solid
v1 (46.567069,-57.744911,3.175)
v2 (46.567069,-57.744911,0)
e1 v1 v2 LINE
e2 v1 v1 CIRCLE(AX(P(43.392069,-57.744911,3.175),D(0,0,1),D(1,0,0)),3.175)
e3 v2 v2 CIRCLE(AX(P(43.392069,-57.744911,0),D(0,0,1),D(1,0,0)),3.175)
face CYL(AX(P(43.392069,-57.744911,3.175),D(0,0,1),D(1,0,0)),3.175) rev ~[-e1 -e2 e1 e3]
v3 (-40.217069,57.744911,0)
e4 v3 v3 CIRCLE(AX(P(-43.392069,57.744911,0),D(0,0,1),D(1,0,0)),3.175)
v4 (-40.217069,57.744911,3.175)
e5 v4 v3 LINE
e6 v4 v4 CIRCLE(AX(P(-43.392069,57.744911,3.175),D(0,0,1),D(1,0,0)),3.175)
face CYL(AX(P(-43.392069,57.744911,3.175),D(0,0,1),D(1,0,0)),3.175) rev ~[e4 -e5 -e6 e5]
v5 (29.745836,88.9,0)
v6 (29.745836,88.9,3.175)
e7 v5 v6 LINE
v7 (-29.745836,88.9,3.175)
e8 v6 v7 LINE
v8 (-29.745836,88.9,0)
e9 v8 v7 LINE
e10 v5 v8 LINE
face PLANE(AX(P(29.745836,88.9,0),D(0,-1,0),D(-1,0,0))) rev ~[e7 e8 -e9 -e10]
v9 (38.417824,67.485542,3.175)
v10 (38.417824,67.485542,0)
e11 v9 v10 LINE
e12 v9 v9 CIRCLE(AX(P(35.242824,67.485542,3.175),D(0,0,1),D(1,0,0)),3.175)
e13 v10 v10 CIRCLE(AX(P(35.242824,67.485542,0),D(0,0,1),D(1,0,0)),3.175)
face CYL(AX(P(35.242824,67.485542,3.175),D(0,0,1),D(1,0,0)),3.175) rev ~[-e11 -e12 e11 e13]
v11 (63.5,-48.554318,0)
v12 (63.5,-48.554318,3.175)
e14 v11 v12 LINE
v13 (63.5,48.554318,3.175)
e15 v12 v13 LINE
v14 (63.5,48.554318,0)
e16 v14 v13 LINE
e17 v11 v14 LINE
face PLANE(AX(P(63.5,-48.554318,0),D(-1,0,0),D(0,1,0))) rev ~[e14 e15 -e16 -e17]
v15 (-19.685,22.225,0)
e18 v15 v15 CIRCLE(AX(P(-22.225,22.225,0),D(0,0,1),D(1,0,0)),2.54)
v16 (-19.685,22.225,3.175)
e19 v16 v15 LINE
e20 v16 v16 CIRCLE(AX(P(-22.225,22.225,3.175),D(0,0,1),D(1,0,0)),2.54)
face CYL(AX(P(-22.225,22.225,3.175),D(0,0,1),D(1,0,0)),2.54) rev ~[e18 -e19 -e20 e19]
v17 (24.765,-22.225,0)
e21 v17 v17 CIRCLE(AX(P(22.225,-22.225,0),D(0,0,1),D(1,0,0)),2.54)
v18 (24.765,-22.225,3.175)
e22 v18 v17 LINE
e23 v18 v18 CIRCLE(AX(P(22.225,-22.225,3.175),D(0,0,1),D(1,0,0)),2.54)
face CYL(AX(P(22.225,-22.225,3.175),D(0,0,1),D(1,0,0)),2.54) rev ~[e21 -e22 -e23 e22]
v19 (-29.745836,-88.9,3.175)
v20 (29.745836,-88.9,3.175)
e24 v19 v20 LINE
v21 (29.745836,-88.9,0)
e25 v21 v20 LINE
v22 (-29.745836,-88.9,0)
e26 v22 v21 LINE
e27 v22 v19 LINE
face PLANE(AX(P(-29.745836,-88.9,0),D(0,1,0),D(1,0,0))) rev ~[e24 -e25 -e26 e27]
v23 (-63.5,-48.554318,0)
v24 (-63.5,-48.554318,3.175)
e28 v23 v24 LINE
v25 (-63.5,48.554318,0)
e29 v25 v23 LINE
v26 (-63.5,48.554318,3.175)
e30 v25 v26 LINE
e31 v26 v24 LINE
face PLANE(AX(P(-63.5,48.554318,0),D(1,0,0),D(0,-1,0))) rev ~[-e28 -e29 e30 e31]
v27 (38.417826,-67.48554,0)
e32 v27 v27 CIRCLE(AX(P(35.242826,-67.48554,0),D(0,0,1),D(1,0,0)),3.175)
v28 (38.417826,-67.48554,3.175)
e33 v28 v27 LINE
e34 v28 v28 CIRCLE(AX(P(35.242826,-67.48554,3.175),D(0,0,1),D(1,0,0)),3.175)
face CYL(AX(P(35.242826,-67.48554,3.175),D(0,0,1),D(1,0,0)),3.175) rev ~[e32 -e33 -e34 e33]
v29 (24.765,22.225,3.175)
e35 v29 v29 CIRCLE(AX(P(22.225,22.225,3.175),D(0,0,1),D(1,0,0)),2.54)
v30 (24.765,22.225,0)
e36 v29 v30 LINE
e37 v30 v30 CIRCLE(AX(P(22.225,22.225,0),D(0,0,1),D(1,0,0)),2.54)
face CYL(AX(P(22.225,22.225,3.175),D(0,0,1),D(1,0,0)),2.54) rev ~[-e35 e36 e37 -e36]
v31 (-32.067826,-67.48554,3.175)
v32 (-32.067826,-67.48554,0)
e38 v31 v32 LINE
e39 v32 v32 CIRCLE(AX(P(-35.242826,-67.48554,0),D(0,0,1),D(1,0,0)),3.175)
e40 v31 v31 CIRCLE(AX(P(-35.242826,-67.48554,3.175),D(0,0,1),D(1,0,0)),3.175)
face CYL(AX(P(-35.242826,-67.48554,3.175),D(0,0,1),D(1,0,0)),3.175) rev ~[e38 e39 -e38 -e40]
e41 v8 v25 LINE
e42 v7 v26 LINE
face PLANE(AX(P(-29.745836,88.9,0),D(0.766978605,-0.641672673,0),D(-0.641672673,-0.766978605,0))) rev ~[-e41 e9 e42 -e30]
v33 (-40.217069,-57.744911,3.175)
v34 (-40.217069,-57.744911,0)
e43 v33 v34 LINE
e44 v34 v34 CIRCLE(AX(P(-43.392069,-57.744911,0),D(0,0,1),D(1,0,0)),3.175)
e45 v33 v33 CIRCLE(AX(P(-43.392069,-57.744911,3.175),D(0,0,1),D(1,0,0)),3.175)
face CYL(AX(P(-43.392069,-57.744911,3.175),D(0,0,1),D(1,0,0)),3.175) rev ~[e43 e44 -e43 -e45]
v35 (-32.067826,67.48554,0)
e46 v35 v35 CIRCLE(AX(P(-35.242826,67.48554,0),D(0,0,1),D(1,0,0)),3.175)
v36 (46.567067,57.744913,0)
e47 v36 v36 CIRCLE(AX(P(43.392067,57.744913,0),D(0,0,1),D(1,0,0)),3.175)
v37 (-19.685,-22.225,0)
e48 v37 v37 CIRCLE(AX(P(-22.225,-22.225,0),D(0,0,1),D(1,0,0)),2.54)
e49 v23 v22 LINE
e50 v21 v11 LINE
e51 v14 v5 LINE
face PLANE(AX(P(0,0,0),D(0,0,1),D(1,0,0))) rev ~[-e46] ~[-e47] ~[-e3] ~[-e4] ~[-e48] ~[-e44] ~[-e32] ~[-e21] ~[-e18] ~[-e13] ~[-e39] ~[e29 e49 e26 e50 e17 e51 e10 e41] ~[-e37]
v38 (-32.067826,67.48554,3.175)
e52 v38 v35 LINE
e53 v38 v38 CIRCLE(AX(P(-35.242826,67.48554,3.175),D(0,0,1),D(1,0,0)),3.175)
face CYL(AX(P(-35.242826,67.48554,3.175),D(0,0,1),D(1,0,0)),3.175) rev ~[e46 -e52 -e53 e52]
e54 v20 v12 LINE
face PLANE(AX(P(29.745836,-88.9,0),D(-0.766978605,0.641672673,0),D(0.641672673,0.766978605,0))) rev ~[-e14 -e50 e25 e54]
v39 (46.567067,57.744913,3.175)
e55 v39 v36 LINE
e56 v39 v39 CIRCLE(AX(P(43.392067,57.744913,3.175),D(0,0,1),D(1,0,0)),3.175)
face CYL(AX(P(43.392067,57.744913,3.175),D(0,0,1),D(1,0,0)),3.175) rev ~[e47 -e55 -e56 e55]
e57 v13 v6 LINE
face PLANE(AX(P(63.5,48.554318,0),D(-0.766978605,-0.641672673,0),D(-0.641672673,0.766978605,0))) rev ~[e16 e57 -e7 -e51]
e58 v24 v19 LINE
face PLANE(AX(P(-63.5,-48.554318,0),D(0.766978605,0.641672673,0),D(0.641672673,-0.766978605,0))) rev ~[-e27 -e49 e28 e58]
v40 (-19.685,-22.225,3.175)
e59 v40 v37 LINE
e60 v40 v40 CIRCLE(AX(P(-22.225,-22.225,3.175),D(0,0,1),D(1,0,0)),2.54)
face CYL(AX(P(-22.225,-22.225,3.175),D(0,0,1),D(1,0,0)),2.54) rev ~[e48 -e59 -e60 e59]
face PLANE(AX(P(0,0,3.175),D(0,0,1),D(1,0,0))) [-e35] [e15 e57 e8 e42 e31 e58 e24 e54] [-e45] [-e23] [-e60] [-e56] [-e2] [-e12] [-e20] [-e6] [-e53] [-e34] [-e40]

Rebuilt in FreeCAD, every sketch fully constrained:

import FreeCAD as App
import Part
import Sketcher

V = App.Vector
Q = App.Units.Quantity


def add_polygon(sketch, points):
    """Adds a closed chain of lines whose ends are joined by coincident constraints."""
    first, n = sketch.GeometryCount, len(points)
    for a, b in zip(points, points[1:] + points[:1]):
        sketch.addGeometry(Part.LineSegment(App.Vector(*a, 0), App.Vector(*b, 0)), False)
    for i in range(n):
        sketch.addConstraint(Sketcher.Constraint("Coincident", first + i, 2, first + (i + 1) % n, 1))

doc = App.newDocument("Part")
params = doc.addObject("Spreadsheet::Sheet", "Params")
for row, (alias, value) in enumerate([
    ("sketch1_length", "2.071 in"),
    ("pad1_length", "0.125 in"),
    ("sketch2_diameter", "0.25 in"),
    ("pocket1_length", "1 in"),
    ("sketch3_diameter", "0.2 in"),
], start=1):
    params.set(f"A{row}", alias)
    params.set(f"B{row}", "=" + value)
    params.setAlias(f"B{row}", alias)

body = doc.addObject("PartDesign::Body", "Body")

# Sketch on XY plane
sketch1 = doc.addObject("Sketcher::SketchObject", "Sketch")
body.addObject(sketch1)
sketch1.AttachmentSupport = (doc.XY_Plane, [""])
sketch1.MapMode = "FlatFace"
add_polygon(sketch1, [(30, 89), (-30, 89), (-64, 49), (-64, -49), (-30, -89), (30, -89), (64, -49), (64, 49)])  # lines 0-7
sketch1.addConstraint([
    Sketcher.Constraint("Horizontal", 0),
    Sketcher.Constraint("Vertical", 2),
    Sketcher.Constraint("Horizontal", 4),
    Sketcher.Constraint("Vertical", 6),
    Sketcher.Constraint("Symmetric", 0, 2, 4, 2, -1, 1),
    Sketcher.Constraint("Symmetric", 1, 2, 5, 2, -1, 1),
    Sketcher.Constraint("Parallel", 3, 7),
    Sketcher.Constraint("Horizontal", 2, 2, 5, 2),
    Sketcher.Constraint("Horizontal", 1, 2, 6, 2),
    Sketcher.Constraint("Vertical", 0, 2, 3, 2),
    Sketcher.Constraint("DistanceY", 3, 2, 0, 2, Q("7 in")),
    Sketcher.Constraint("DistanceX", 2, 2, 5, 2, Q("5 in")),
    Sketcher.Constraint("Distance", 1, Q("2.071 in")),
    Sketcher.Constraint("DistanceX", 0, 2, 0, 1, Q("59.491672 mm")),
])
sketch1.setExpression("Constraints[20]", "Params.sketch1_length")
pad1 = doc.addObject("PartDesign::Pad", "Pad")
body.addObject(pad1)
pad1.Profile = sketch1
pad1.setExpression("Length", "Params.pad1_length")

# Sketch on XY plane
sketch2 = doc.addObject("Sketcher::SketchObject", "Sketch001")
body.addObject(sketch2)
sketch2.AttachmentSupport = (doc.XY_Plane, [""])
sketch2.MapMode = "FlatFace"
sketch2.AttachmentOffset = App.Placement(V(0, 0, 0.125 * 25.4), App.Rotation())
sketch2.addGeometry([
    Part.Circle(V(-43.4, 57.7, 0), V(0, 0, 1), 3.2),  # 0
    Part.Circle(V(-35.2, 67.5, 0), V(0, 0, 1), 3.2),  # 1
    Part.Circle(V(35.2, 67.5, 0), V(0, 0, 1), 3.2),  # 2
    Part.Circle(V(43.4, 57.7, 0), V(0, 0, 1), 3.2),  # 3
    Part.Circle(V(43.4, -57.7, 0), V(0, 0, 1), 3.2),  # 4
    Part.Circle(V(35.2, -67.5, 0), V(0, 0, 1), 3.2),  # 5
    Part.Circle(V(-35.2, -67.5, 0), V(0, 0, 1), 3.2),  # 6
    Part.Circle(V(-43.4, -57.7, 0), V(0, 0, 1), 3.2),  # 7
], False)
sketch2.addConstraint([
    Sketcher.Constraint("Equal", 0, 1),
    Sketcher.Constraint("Equal", 1, 2),
    Sketcher.Constraint("Equal", 2, 3),
    Sketcher.Constraint("Equal", 3, 4),
    Sketcher.Constraint("Equal", 4, 5),
    Sketcher.Constraint("Equal", 5, 6),
    Sketcher.Constraint("Equal", 6, 7),
    Sketcher.Constraint("Symmetric", 0, 3, 4, 3, -1, 1),
    Sketcher.Constraint("Symmetric", 1, 3, 5, 3, -1, 1),
    Sketcher.Constraint("Symmetric", 2, 3, 6, 3, -1, 1),
    Sketcher.Constraint("Symmetric", 3, 3, 7, 3, -1, 1),
    Sketcher.Constraint("Symmetric", 1, 3, 2, 3, -2),
    Sketcher.Constraint("Symmetric", 0, 3, 3, 3, -2),
    Sketcher.Constraint("Diameter", 0, Q("0.25 in")),
    Sketcher.Constraint("DistanceX", 0, 3, -1, 1, Q("43.392069 mm")),
    Sketcher.Constraint("DistanceY", -1, 1, 0, 3, Q("57.744911 mm")),
    Sketcher.Constraint("DistanceY", -1, 1, 1, 3, Q("67.48554 mm")),
    Sketcher.Constraint("DistanceX", 1, 3, 2, 3, Q("70.48565 mm")),
])
sketch2.setExpression("Constraints[13]", "Params.sketch2_diameter")
pocket1 = doc.addObject("PartDesign::Pocket", "Pocket")
body.addObject(pocket1)
pocket1.Profile = sketch2
pocket1.setExpression("Length", "Params.pocket1_length")

# Sketch on XY plane
sketch3 = doc.addObject("Sketcher::SketchObject", "Sketch002")
body.addObject(sketch3)
sketch3.AttachmentSupport = (doc.XY_Plane, [""])
sketch3.MapMode = "FlatFace"
sketch3.AttachmentOffset = App.Placement(V(0, 0, 0.125 * 25.4), App.Rotation())
sketch3.addGeometry([
    Part.Circle(V(-22.2, 22.2, 0), V(0, 0, 1), 2.5),
    Part.Circle(V(22.2, 22.2, 0), V(0, 0, 1), 2.5),
    Part.Circle(V(-22.2, -22.2, 0), V(0, 0, 1), 2.5),
    Part.Circle(V(22.2, -22.2, 0), V(0, 0, 1), 2.5),
], False)
sketch3.addConstraint([
    Sketcher.Constraint("Equal", 0, 1),
    Sketcher.Constraint("Equal", 1, 2),
    Sketcher.Constraint("Equal", 2, 3),
    Sketcher.Constraint("Symmetric", 1, 3, 2, 3, -1, 1),
    Sketcher.Constraint("Symmetric", 0, 3, 3, 3, -1, 1),
    Sketcher.Constraint("Symmetric", 0, 3, 1, 3, -2),
    Sketcher.Constraint("Diameter", 0, Q("0.2 in")),
    Sketcher.Constraint("DistanceX", 0, 3, 1, 3, Q("1.75 in")),
    Sketcher.Constraint("DistanceY", 2, 3, 0, 3, Q("1.75 in")),
])
sketch3.setExpression("Constraints[6]", "Params.sketch3_diameter")
pocket2 = doc.addObject("PartDesign::Pocket", "Pocket001")
body.addObject(pocket2)
pocket2.Profile = sketch3
pocket2.Type = "ThroughAll"

doc.recompute()
